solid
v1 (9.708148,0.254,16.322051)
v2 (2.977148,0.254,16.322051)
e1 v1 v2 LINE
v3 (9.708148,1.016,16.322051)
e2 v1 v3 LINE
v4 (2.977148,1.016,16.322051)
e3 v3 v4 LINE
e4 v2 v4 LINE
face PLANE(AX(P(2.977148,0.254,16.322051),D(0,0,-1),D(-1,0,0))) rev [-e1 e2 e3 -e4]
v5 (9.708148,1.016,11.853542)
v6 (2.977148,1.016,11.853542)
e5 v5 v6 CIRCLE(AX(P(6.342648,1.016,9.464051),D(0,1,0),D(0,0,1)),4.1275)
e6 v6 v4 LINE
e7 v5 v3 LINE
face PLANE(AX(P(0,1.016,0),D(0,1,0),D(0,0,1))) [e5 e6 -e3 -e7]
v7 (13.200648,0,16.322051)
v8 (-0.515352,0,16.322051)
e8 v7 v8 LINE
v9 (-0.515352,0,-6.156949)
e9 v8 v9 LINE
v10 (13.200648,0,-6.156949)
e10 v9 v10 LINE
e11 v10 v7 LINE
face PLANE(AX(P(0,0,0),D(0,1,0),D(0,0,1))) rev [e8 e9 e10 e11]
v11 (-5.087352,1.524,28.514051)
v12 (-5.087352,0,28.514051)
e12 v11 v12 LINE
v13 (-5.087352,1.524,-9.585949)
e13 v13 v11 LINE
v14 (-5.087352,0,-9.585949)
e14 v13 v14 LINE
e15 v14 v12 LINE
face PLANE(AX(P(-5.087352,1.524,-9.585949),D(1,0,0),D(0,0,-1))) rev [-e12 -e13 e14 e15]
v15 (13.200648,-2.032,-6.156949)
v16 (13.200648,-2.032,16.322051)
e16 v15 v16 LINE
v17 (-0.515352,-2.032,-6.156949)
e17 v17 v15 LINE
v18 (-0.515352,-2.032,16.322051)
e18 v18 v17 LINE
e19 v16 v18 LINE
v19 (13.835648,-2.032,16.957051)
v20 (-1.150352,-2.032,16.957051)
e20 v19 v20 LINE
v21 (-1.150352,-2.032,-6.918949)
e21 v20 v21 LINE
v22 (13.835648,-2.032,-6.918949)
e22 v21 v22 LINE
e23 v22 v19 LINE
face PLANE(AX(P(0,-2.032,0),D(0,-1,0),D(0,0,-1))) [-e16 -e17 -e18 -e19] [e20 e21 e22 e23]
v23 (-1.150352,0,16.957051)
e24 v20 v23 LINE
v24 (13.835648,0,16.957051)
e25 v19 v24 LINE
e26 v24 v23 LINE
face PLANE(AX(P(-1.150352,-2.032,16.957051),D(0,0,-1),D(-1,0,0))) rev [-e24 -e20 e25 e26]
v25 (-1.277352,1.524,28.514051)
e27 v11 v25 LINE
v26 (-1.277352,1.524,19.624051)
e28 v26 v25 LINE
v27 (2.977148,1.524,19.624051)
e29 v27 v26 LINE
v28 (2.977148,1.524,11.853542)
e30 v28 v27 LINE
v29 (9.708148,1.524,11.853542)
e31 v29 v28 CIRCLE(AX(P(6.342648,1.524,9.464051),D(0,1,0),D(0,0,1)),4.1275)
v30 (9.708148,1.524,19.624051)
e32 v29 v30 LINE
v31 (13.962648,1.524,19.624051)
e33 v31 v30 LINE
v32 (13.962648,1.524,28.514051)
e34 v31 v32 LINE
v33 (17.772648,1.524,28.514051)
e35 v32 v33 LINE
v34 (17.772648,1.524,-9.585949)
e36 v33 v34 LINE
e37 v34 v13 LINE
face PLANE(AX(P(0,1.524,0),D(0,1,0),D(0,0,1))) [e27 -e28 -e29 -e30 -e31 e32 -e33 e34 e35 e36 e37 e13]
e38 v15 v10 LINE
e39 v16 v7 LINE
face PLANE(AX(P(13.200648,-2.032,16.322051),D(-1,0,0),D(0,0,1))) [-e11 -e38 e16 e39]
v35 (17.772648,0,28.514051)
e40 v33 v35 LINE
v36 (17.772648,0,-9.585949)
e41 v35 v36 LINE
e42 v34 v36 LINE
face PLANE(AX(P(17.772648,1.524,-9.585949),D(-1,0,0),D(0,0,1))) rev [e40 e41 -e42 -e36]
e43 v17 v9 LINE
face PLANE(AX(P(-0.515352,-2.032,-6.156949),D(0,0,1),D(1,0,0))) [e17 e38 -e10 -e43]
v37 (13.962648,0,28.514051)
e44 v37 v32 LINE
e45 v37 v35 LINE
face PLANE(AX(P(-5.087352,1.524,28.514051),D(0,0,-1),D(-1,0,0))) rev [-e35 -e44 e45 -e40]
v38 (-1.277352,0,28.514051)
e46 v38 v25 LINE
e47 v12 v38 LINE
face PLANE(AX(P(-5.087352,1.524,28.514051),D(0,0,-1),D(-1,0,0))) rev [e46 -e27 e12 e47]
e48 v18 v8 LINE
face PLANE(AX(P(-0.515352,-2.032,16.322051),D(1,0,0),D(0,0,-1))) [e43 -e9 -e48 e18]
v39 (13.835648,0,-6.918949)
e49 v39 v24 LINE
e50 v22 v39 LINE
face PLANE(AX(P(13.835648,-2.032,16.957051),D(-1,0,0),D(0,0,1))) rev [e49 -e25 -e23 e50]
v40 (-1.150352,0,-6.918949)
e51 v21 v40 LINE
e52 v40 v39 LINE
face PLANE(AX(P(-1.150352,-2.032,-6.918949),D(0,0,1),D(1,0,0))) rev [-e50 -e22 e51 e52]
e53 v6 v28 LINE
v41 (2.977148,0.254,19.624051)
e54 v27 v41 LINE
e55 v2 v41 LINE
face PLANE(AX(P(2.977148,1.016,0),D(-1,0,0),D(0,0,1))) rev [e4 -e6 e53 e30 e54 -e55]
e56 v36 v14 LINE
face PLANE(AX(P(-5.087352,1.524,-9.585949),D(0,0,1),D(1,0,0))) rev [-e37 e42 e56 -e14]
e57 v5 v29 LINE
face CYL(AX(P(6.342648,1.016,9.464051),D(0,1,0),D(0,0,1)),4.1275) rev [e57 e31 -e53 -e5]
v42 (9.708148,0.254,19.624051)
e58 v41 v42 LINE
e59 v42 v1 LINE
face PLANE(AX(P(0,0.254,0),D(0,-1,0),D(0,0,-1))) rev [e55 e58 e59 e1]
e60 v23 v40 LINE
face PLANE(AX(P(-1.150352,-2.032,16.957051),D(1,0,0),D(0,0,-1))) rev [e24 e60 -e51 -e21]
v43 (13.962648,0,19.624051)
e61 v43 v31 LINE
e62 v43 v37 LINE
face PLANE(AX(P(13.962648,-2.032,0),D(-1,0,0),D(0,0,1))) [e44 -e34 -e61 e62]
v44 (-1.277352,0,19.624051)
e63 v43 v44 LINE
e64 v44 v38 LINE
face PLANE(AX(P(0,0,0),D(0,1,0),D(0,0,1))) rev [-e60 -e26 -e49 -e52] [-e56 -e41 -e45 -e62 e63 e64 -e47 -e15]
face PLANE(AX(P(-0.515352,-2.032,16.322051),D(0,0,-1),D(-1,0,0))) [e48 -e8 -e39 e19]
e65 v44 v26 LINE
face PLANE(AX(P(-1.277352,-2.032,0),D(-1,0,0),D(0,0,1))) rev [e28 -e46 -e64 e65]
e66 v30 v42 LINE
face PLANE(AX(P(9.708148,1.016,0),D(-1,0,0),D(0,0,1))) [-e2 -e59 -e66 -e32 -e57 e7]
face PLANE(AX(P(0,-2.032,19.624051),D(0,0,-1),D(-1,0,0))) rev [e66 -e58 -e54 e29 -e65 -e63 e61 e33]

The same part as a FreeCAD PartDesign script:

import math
import FreeCAD as App
import Part
import Sketcher

V = App.Vector
Q = App.Units.Quantity


def add_polygon(sketch, points):
    """Adds a closed chain of lines whose ends are joined by coincident constraints."""
    first, n = sketch.GeometryCount, len(points)
    for a, b in zip(points, points[1:] + points[:1]):
        sketch.addGeometry(Part.LineSegment(App.Vector(*a, 0), App.Vector(*b, 0)), False)
    for i in range(n):
        sketch.addConstraint(Sketcher.Constraint("Coincident", first + i, 2, first + (i + 1) % n, 1))

doc = App.newDocument("Part")
body = doc.addObject("PartDesign::Body", "Body")

sketch1 = doc.addObject("Sketcher::SketchObject", "Sketch")
body.addObject(sketch1)
sketch1.AttachmentSupport = (doc.XZ_Plane, [""])
sketch1.MapMode = "FlatFace"
add_polygon(sketch1, [(-5.087352, -9.585949), (-5.087352, 28.514051), (17.772648, 28.514051), (17.772648, -9.585949)])
sketch1.addConstraint(Sketcher.Constraint("Vertical", 0))
sketch1.addConstraint(Sketcher.Constraint("Horizontal", 1))
sketch1.addConstraint(Sketcher.Constraint("Vertical", 2))
sketch1.addConstraint(Sketcher.Constraint("Horizontal", 3))
sketch1.addConstraint(Sketcher.Constraint("DistanceX", 1, 1, 1, 2, Q("0.9 in")))
sketch1.addConstraint(Sketcher.Constraint("DistanceY", 0, 1, 0, 2, Q("1.5 in")))
sketch1.addConstraint(Sketcher.Constraint("DistanceX", 0, 2, -1, 1, 5.087352))
sketch1.addConstraint(Sketcher.Constraint("DistanceY", -1, 1, 0, 2, 28.514051))
pad1 = doc.addObject("PartDesign::Pad", "Pad")
body.addObject(pad1)
pad1.Profile = sketch1
pad1.Length = Q("0.06 in")
pad1.Reversed = True

sketch2 = doc.addObject("Sketcher::SketchObject", "Sketch001")
body.addObject(sketch2)
sketch2.AttachmentSupport = (doc.XZ_Plane, [""])
sketch2.MapMode = "FlatFace"
add_polygon(sketch2, [(-1.150352, 16.957051), (-1.150352, -6.918949), (13.835648, -6.918949), (13.835648, 16.957051)])
add_polygon(sketch2, [(13.200648, -6.156949), (-0.515352, -6.156949), (-0.515352, 16.322051), (13.200648, 16.322051)])
sketch2.addConstraint(Sketcher.Constraint("Vertical", 0))
sketch2.addConstraint(Sketcher.Constraint("Horizontal", 1))
sketch2.addConstraint(Sketcher.Constraint("Vertical", 2))
sketch2.addConstraint(Sketcher.Constraint("Horizontal", 3))
sketch2.addConstraint(Sketcher.Constraint("Horizontal", 4))
sketch2.addConstraint(Sketcher.Constraint("Vertical", 5))
sketch2.addConstraint(Sketcher.Constraint("Horizontal", 6))
sketch2.addConstraint(Sketcher.Constraint("Vertical", 7))
sketch2.addConstraint(Sketcher.Constraint("DistanceX", 1, 1, 1, 2, Q("0.59 in")))
sketch2.addConstraint(Sketcher.Constraint("DistanceX", 4, 2, 4, 1, Q("0.54 in")))
sketch2.addConstraint(Sketcher.Constraint("DistanceY", 0, 2, 0, 1, Q("0.94 in")))
sketch2.addConstraint(Sketcher.Constraint("DistanceY", 5, 1, 5, 2, Q("0.885 in")))
sketch2.addConstraint(Sketcher.Constraint("DistanceY", 0, 2, 4, 2, Q("0.03 in")))
sketch2.addConstraint(Sketcher.Constraint("DistanceX", 0, 2, 4, 2, Q("0.025 in")))
sketch2.addConstraint(Sketcher.Constraint("DistanceX", 0, 2, -1, 1, 1.150352))
sketch2.addConstraint(Sketcher.Constraint("DistanceY", 0, 2, -1, 1, 6.918949))
pad2 = doc.addObject("PartDesign::Pad", "Pad001")
body.addObject(pad2)
pad2.Profile = sketch2
pad2.Length = Q("0.08 in")

sketch3 = doc.addObject("Sketcher::SketchObject", "Sketch002")
body.addObject(sketch3)
sketch3.AttachmentSupport = (doc.XZ_Plane, [""])
sketch3.MapMode = "FlatFace"
sketch3.AttachmentOffset = App.Placement(V(0, 0, -0.06 * 25.4), App.Rotation())
sketch3.addGeometry(Part.ArcOfCircle(Part.Circle(V(6.342648, 9.464051, 0), V(0, 0, 1), 4.1275), math.radians(144.62541), math.radians(360)), False)
sketch3.addGeometry(Part.LineSegment(V(2.977148, 11.853542, 0), V(2.977148, 28.514051, 0)), False)
sketch3.addGeometry(Part.LineSegment(V(2.977148, 28.514051, 0), V(9.708148, 28.514051, 0)), False)
sketch3.addGeometry(Part.LineSegment(V(9.708148, 28.514051, 0), V(9.708148, 11.853542, 0)), False)
sketch3.addGeometry(Part.ArcOfCircle(Part.Circle(V(6.342648, 9.464051, 0), V(0, 0, 1), 4.1275), math.radians(0), math.radians(35.37459)), False)
sketch3.addConstraint(Sketcher.Constraint("Coincident", 0, 1, 1, 1))
sketch3.addConstraint(Sketcher.Constraint("Coincident", 1, 2, 2, 1))
sketch3.addConstraint(Sketcher.Constraint("Coincident", 2, 2, 3, 1))
sketch3.addConstraint(Sketcher.Constraint("Coincident", 3, 2, 4, 2))
sketch3.addConstraint(Sketcher.Constraint("Tangent", 4, 1, 0, 2))
sketch3.addConstraint(Sketcher.Constraint("Vertical", 1))
sketch3.addConstraint(Sketcher.Constraint("Horizontal", 2))
sketch3.addConstraint(Sketcher.Constraint("Vertical", 3))
sketch3.addConstraint(Sketcher.Constraint("Equal", 0, 4))
sketch3.addConstraint(Sketcher.Constraint("Horizontal", 0, 1, 3, 2))
sketch3.addConstraint(Sketcher.Constraint("Horizontal", 0, 3, 4, 1))
sketch3.addConstraint(Sketcher.Constraint("Radius", 0, Q("0.1625 in")))
sketch3.addConstraint(Sketcher.Constraint("DistanceX", 2, 1, 2, 2, Q("0.265 in")))
sketch3.addConstraint(Sketcher.Constraint("DistanceY", 4, 3, 1, 2, Q("0.75 in")))
sketch3.addConstraint(Sketcher.Constraint("DistanceX", -1, 1, 0, 3, 6.342648))
sketch3.addConstraint(Sketcher.Constraint("DistanceY", -1, 1, 0, 3, 9.464051))
pocket1 = doc.addObject("PartDesign::Pocket", "Pocket")
body.addObject(pocket1)
pocket1.Profile = sketch3
pocket1.Length = Q("0.02 in")
pocket1.Reversed = True

sketch4 = doc.addObject("Sketcher::SketchObject", "Sketch003")
body.addObject(sketch4)
sketch4.AttachmentSupport = (doc.XZ_Plane, [""])
sketch4.MapMode = "FlatFace"
sketch4.AttachmentOffset = App.Placement(V(0, 0, -0.06 * 25.4), App.Rotation())
add_polygon(sketch4, [(-1.277352, 19.624051), (-1.277352, 28.514051), (13.962648, 28.514051), (13.962648, 19.624051)])
sketch4.addConstraint(Sketcher.Constraint("Vertical", 0))
sketch4.addConstraint(Sketcher.Constraint("Horizontal", 1))
sketch4.addConstraint(Sketcher.Constraint("Vertical", 2))
sketch4.addConstraint(Sketcher.Constraint("Horizontal", 3))
sketch4.addConstraint(Sketcher.Constraint("DistanceX", 1, 1, 1, 2, Q("0.6 in")))
sketch4.addConstraint(Sketcher.Constraint("DistanceY", 0, 1, 0, 2, Q("0.35 in")))
sketch4.addConstraint(Sketcher.Constraint("DistanceX", 0, 2, -1, 1, 1.277352))
sketch4.addConstraint(Sketcher.Constraint("DistanceY", -1, 1, 0, 2, 28.514051))
pocket2 = doc.addObject("PartDesign::Pocket", "Pocket001")
body.addObject(pocket2)
pocket2.Profile = sketch4
pocket2.Type = "ThroughAll"
pocket2.Reversed = True

sketch5 = doc.addObject("Sketcher::SketchObject", "Sketch004")
body.addObject(sketch5)
sketch5.AttachmentSupport = (doc.XZ_Plane, [""])
sketch5.MapMode = "FlatFace"
sketch5.AttachmentOffset = App.Placement(V(0, 0, -0.04 * 25.4), App.Rotation())
add_polygon(sketch5, [(2.977148, 16.322051), (2.977148, 19.624051), (9.708148, 19.624051), (9.708148, 16.322051)])
sketch5.addConstraint(Sketcher.Constraint("Vertical", 0))
sketch5.addConstraint(Sketcher.Constraint("Horizontal", 1))
sketch5.addConstraint(Sketcher.Constraint("Vertical", 2))
sketch5.addConstraint(Sketcher.Constraint("Horizontal", 3))
sketch5.addConstraint(Sketcher.Constraint("DistanceY", 0, 1, 0, 2, Q("0.13 in")))
sketch5.addConstraint(Sketcher.Constraint("DistanceX", 1, 1, 1, 2, Q("0.265 in")))
sketch5.addConstraint(Sketcher.Constraint("DistanceX", -1, 1, 0, 2, 2.977148))
sketch5.addConstraint(Sketcher.Constraint("DistanceY", -1, 1, 0, 2, 19.624051))
pocket3 = doc.addObject("PartDesign::Pocket", "Pocket002")
body.addObject(pocket3)
pocket3.Profile = sketch5
pocket3.Length = Q("0.03 in")
pocket3.Reversed = True

doc.recompute()
